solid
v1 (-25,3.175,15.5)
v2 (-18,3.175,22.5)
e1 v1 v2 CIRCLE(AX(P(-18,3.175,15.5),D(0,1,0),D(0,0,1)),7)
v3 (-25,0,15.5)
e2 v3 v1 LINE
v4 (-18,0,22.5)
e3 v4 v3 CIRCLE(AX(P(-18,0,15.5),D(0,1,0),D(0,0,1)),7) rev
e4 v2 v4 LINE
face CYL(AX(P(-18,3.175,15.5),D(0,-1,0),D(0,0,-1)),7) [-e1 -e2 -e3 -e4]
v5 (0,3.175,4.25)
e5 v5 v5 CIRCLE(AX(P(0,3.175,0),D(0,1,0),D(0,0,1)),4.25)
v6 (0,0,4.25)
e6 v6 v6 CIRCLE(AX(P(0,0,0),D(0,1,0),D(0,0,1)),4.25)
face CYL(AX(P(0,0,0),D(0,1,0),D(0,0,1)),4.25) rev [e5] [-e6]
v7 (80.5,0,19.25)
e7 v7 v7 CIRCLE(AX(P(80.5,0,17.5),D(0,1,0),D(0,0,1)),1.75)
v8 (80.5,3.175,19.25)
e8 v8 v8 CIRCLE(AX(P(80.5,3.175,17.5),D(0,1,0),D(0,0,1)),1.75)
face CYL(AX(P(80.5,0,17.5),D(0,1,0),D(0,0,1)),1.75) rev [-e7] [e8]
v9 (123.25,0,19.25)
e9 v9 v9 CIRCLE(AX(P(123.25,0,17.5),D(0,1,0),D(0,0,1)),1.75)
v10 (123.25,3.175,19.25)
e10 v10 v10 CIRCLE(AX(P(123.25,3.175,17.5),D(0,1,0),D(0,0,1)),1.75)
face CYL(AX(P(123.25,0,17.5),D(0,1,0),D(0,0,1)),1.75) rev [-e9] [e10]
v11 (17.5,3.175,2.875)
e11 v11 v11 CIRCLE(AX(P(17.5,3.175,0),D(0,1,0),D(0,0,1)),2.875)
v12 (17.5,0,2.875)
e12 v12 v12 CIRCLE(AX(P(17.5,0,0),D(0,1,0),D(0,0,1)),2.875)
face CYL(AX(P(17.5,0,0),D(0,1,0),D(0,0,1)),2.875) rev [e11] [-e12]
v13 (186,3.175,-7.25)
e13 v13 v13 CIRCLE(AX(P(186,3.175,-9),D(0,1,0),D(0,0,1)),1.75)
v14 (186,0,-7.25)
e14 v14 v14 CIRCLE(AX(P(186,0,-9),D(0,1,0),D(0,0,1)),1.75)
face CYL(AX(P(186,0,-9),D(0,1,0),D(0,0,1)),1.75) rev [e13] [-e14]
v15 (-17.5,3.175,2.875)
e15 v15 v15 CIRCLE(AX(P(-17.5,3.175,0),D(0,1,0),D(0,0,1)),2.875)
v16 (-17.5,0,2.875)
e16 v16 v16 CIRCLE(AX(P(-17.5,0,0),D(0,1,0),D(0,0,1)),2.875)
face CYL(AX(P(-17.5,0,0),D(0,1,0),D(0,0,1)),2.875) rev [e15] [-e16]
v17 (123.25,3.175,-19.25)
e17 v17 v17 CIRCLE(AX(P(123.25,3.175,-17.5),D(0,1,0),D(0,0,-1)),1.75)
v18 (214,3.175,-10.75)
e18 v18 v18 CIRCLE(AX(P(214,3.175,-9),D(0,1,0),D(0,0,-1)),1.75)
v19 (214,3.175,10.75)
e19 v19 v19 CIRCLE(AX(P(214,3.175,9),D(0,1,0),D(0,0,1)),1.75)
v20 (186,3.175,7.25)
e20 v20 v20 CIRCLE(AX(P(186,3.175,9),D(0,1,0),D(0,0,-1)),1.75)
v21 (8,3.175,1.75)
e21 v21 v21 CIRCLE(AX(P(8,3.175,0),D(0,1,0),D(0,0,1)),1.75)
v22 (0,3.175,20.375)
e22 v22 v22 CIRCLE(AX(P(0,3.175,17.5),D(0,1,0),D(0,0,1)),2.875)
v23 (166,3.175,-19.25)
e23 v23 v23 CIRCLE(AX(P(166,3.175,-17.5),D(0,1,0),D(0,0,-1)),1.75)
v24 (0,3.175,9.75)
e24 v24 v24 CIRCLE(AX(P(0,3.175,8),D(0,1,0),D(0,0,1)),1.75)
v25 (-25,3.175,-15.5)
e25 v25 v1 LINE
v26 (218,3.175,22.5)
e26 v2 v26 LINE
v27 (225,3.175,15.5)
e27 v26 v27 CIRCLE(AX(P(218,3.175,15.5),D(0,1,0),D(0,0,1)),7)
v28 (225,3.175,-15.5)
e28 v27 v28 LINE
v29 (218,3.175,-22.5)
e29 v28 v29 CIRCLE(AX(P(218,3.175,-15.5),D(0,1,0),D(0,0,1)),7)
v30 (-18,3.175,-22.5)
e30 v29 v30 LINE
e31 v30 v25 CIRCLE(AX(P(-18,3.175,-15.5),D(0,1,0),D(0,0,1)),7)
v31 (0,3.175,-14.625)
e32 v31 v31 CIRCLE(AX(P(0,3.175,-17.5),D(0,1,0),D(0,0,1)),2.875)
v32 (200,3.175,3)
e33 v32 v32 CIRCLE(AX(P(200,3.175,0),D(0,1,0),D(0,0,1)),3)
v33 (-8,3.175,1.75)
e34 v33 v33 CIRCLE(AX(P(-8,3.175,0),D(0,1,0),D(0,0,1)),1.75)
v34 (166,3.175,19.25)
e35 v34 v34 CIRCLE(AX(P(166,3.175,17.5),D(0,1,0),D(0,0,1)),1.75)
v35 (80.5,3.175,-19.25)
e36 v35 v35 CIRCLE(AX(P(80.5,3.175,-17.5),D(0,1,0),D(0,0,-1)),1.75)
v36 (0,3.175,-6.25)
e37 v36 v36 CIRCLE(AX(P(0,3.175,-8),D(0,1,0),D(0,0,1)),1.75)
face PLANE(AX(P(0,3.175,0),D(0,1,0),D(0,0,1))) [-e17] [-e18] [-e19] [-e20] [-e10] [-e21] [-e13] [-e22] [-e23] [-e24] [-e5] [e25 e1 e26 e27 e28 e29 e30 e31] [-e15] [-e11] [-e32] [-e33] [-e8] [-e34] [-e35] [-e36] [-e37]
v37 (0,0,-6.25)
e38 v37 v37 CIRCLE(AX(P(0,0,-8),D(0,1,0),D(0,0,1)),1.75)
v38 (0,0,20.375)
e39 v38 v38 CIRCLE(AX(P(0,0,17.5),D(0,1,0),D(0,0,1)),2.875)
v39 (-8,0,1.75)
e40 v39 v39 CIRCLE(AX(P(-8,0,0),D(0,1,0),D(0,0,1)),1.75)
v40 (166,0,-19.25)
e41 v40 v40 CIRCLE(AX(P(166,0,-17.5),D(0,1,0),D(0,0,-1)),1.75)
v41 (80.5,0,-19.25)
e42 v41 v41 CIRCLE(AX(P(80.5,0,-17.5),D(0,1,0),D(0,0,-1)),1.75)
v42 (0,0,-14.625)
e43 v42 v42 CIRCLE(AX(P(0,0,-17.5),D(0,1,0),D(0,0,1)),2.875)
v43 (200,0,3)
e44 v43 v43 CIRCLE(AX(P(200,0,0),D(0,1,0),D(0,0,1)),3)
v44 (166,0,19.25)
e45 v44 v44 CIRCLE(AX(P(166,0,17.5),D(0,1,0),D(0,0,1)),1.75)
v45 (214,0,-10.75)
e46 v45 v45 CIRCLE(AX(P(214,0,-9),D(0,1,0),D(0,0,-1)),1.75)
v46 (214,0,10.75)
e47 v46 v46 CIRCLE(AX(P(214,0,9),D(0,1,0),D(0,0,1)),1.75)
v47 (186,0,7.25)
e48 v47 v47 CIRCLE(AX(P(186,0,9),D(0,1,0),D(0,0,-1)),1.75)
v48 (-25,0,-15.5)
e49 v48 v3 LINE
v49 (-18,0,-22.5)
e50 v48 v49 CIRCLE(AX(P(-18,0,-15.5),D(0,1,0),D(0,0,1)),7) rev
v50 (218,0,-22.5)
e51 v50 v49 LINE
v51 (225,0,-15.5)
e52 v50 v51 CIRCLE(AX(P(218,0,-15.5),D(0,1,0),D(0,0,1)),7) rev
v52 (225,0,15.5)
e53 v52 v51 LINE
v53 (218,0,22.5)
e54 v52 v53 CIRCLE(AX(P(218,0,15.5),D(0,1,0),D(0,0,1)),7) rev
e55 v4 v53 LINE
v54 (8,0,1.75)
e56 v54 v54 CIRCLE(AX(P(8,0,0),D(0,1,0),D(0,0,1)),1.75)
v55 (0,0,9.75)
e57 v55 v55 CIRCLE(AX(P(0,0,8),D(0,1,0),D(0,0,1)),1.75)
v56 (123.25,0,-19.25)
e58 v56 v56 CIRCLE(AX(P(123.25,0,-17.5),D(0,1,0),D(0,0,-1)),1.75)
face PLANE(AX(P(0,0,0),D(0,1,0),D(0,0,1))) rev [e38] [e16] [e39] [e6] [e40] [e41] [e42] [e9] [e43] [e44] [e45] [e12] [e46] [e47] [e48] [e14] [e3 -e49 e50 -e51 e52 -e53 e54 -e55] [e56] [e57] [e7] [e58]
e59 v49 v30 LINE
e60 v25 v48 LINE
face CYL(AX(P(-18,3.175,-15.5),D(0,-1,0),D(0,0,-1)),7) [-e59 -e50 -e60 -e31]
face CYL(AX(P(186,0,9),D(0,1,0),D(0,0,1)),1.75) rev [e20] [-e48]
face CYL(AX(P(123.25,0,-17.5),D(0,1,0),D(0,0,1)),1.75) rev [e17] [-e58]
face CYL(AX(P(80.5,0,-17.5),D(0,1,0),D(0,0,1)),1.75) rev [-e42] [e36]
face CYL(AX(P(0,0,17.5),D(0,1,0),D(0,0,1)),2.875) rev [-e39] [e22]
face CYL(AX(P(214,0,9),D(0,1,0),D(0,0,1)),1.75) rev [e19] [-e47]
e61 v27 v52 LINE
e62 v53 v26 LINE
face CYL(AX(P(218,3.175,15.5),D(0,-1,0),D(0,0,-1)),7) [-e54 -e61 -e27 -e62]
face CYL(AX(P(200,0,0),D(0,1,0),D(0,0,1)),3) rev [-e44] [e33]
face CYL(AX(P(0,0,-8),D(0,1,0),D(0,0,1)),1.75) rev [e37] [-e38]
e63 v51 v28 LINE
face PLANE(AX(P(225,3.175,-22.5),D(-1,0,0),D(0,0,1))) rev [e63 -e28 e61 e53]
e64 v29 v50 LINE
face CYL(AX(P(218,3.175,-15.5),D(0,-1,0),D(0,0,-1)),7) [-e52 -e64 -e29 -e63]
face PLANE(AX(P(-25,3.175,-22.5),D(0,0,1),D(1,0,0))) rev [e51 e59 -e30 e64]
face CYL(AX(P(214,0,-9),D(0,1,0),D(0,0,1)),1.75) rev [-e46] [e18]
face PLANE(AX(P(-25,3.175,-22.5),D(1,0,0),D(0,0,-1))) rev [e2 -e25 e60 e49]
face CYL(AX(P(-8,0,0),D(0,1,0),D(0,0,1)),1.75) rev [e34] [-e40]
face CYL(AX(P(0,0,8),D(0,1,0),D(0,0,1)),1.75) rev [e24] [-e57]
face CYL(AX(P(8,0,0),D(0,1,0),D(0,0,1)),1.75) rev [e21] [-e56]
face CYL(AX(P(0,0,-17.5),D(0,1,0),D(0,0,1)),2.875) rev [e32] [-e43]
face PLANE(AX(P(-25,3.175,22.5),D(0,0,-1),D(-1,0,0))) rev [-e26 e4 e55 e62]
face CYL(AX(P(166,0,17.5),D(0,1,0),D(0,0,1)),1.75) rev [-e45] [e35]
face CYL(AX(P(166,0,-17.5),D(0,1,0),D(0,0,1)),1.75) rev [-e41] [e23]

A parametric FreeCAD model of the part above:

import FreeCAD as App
import Part
import Sketcher


def edges_at(feature, points):
    """Names of the edges that pass closest to the given points."""
    edges = feature.Shape.Edges
    near = lambda p: min(range(len(edges)), key=lambda i: edges[i].distToShape(Part.Vertex(*p))[0])
    return sorted({f"Edge{near(p) + 1}" for p in points})


def add_polygon(sketch, points):
    """Adds a closed chain of lines whose ends are joined by coincident constraints."""
    first, n = sketch.GeometryCount, len(points)
    for a, b in zip(points, points[1:] + points[:1]):
        sketch.addGeometry(Part.LineSegment(App.Vector(*a, 0), App.Vector(*b, 0)), False)
    for i in range(n):
        sketch.addConstraint(Sketcher.Constraint("Coincident", first + i, 2, first + (i + 1) % n, 1))

doc = App.newDocument("Part")
body = doc.addObject("PartDesign::Body", "Body")

# Sketch on XZ plane
sketch1 = body.newObject("Sketcher::SketchObject", "Sketch")
sketch1.AttachmentSupport = (doc.getObject("XZ_Plane"), [""])
sketch1.MapMode = "FlatFace"
add_polygon(sketch1, [(-25, -22), (-25, 22), (225, 22), (225, -22)])  # lines 0-3
sketch1.addConstraint([
    Sketcher.Constraint("Vertical", 0),
    Sketcher.Constraint("Horizontal", 1),
    Sketcher.Constraint("Vertical", 2),
    Sketcher.Constraint("Horizontal", 3),
    Sketcher.Constraint("DistanceX", 1, 1, 1, 2, 250.0),
    Sketcher.Constraint("DistanceY", 0, 1, 0, 2, 45.0),
    Sketcher.Constraint("DistanceX", 0, 2, -1, 1, 25.0),
    Sketcher.Constraint("DistanceY", -1, 1, 0, 2, 22.5),
])
pad1 = body.newObject("PartDesign::Pad", "Pad")
pad1.Profile = sketch1
pad1.Length = 3.175
pad1.Reversed = True

# Sketch on XZ plane
sketch2 = body.newObject("Sketcher::SketchObject", "Sketch001")
sketch2.AttachmentSupport = (doc.getObject("XZ_Plane"), [""])
sketch2.MapMode = "FlatFace"
sketch2.AttachmentOffset = App.Placement(App.Vector(0, 0, -3.175), App.Rotation())
sketch2.addGeometry([
    Part.Circle(App.Vector(200, 0, 0), App.Vector(0, 0, 1), 3),  # 0
    Part.Circle(App.Vector(186, -9, 0), App.Vector(0, 0, 1), 1.8),  # 1
    Part.Circle(App.Vector(214, -9, 0), App.Vector(0, 0, 1), 1.8),  # 2
    Part.Circle(App.Vector(214, 9, 0), App.Vector(0, 0, 1), 1.8),  # 3
    Part.Circle(App.Vector(186, 9, 0), App.Vector(0, 0, 1), 1.8),  # 4
], False)
sketch2.addConstraint([
    Sketcher.Constraint("Equal", 1, 2),
    Sketcher.Constraint("Equal", 2, 3),
    Sketcher.Constraint("Equal", 3, 4),
    Sketcher.Constraint("Symmetric", 2, 3, 3, 3, -1),
    Sketcher.Constraint("Symmetric", 1, 3, 4, 3, -1),
    Sketcher.Constraint("PointOnObject", 0, 3, -1),
    Sketcher.Constraint("Horizontal", 1, 3, 2, 3),
    Sketcher.Constraint("Diameter", 0, 6.0),
    Sketcher.Constraint("Diameter", 1, 3.5),
    Sketcher.Constraint("DistanceX", -1, 1, 0, 3, 200.0),
    Sketcher.Constraint("DistanceX", -1, 1, 1, 3, 186.0),
    Sketcher.Constraint("DistanceY", 1, 3, -1, 1, 9.0),
    Sketcher.Constraint("DistanceX", -1, 1, 2, 3, 214.0),
])
pocket1 = body.newObject("PartDesign::Pocket", "Pocket")
pocket1.Profile = sketch2
pocket1.Type = "ThroughAll"
pocket1.Reversed = True

# Sketch on XZ plane
sketch3 = body.newObject("Sketcher::SketchObject", "Sketch002")
sketch3.AttachmentSupport = (doc.getObject("XZ_Plane"), [""])
sketch3.MapMode = "FlatFace"
sketch3.AttachmentOffset = App.Placement(App.Vector(0, 0, -3.175), App.Rotation())
sketch3.addGeometry(Part.Circle(App.Vector(0, 0, 0), App.Vector(0, 0, 1), 4.2), False)
sketch3.addConstraint([
    Sketcher.Constraint("Coincident", 0, 3, -1, 1),
    Sketcher.Constraint("Diameter", 0, 8.5),
])
pocket2 = body.newObject("PartDesign::Pocket", "Pocket001")
pocket2.Profile = sketch3
pocket2.Type = "ThroughAll"
pocket2.Reversed = True

# Sketch on XZ plane
sketch4 = body.newObject("Sketcher::SketchObject", "Sketch003")
sketch4.AttachmentSupport = (doc.getObject("XZ_Plane"), [""])
sketch4.MapMode = "FlatFace"
sketch4.AttachmentOffset = App.Placement(App.Vector(0, 0, -3.175), App.Rotation())
sketch4.addGeometry([
    Part.Circle(App.Vector(80.5, 17.5, 0), App.Vector(0, 0, 1), 1.8),  # 0
    Part.Circle(App.Vector(166, 17.5, 0), App.Vector(0, 0, 1), 1.8),  # 1
    Part.Circle(App.Vector(166, -17.5, 0), App.Vector(0, 0, 1), 1.8),  # 2
    Part.Circle(App.Vector(80.5, -17.5, 0), App.Vector(0, 0, 1), 1.8),  # 3
    Part.Circle(App.Vector(123.2, 17.5, 0), App.Vector(0, 0, 1), 1.8),  # 4
    Part.Circle(App.Vector(123.2, -17.5, 0), App.Vector(0, 0, 1), 1.8),  # 5
], False)
sketch4.addConstraint([
    Sketcher.Constraint("Equal", 0, 1),
    Sketcher.Constraint("Equal", 1, 2),
    Sketcher.Constraint("Equal", 2, 3),
    Sketcher.Constraint("Equal", 3, 4),
    Sketcher.Constraint("Equal", 4, 5),
    Sketcher.Constraint("Symmetric", 1, 3, 2, 3, -1),
    Sketcher.Constraint("Symmetric", 0, 3, 3, 3, -1),
    Sketcher.Constraint("Symmetric", 4, 3, 5, 3, -1),
    Sketcher.Constraint("Horizontal", 0, 3, 1, 3),
    Sketcher.Constraint("Horizontal", 1, 3, 4, 3),
    Sketcher.Constraint("Diameter", 0, 3.5),
    Sketcher.Constraint("DistanceX", -1, 1, 1, 3, 166.0),
    Sketcher.Constraint("DistanceY", 2, 3, 1, 3, 35.0),
    Sketcher.Constraint("DistanceX", -1, 1, 0, 3, 80.5),
    Sketcher.Constraint("DistanceX", -1, 1, 4, 3, 123.25),
])
pocket3 = body.newObject("PartDesign::Pocket", "Pocket002")
pocket3.Profile = sketch4
pocket3.Type = "ThroughAll"
pocket3.Reversed = True
doc.recompute()

fillet = body.newObject("PartDesign::Fillet", "Fillet")
fillet.Base = (pocket3, edges_at(pocket3, [
    (-25, 1.587, -22.5),
    (225, 1.587, -22.5),
    (225, 1.587, 22.5),
    (-25, 1.587, 22.5),
]))
fillet.Radius = 7

# Sketch on XZ plane
sketch5 = body.newObject("Sketcher::SketchObject", "Sketch004")
sketch5.AttachmentSupport = (doc.getObject("XZ_Plane"), [""])
sketch5.MapMode = "FlatFace"
sketch5.AttachmentOffset = App.Placement(App.Vector(0, 0, -3.175), App.Rotation())
sketch5.addGeometry([
    Part.Circle(App.Vector(0, -17.5, 0), App.Vector(0, 0, 1), 2.9),
    Part.Circle(App.Vector(17.5, 0, 0), App.Vector(0, 0, 1), 2.9),
    Part.Circle(App.Vector(0, 17.5, 0), App.Vector(0, 0, 1), 2.9),
    Part.Circle(App.Vector(-17.5, 0, 0), App.Vector(0, 0, 1), 2.9),
], False)
sketch5.addConstraint([
    Sketcher.Constraint("Equal", 0, 1),
    Sketcher.Constraint("Equal", 1, 2),
    Sketcher.Constraint("Equal", 2, 3),
    Sketcher.Constraint("Symmetric", 0, 3, 2, 3, -1, 1),
    Sketcher.Constraint("Symmetric", 1, 3, 3, 3, -1, 1),
    Sketcher.Constraint("PointOnObject", 0, 3, -2),
    Sketcher.Constraint("PointOnObject", 1, 3, -1),
    Sketcher.Constraint("Diameter", 0, 5.75),
    Sketcher.Constraint("DistanceY", 0, 3, 2, 3, 35.0),
    Sketcher.Constraint("DistanceX", 3, 3, 1, 3, 35.0),
])
pocket4 = body.newObject("PartDesign::Pocket", "Pocket003")
pocket4.Profile = sketch5
pocket4.Type = "ThroughAll"
pocket4.Reversed = True

# Sketch on XZ plane
sketch6 = body.newObject("Sketcher::SketchObject", "Sketch005")
sketch6.AttachmentSupport = (doc.getObject("XZ_Plane"), [""])
sketch6.MapMode = "FlatFace"
sketch6.AttachmentOffset = App.Placement(App.Vector(0, 0, -3.175), App.Rotation())
sketch6.addGeometry([
    Part.Circle(App.Vector(0, -8, 0), App.Vector(0, 0, 1), 1.8),
    Part.Circle(App.Vector(8, 0, 0), App.Vector(0, 0, 1), 1.8),
    Part.Circle(App.Vector(0, 8, 0), App.Vector(0, 0, 1), 1.8),
    Part.Circle(App.Vector(-8, 0, 0), App.Vector(0, 0, 1), 1.8),
], False)
sketch6.addConstraint([
    Sketcher.Constraint("Equal", 0, 1),
    Sketcher.Constraint("Equal", 1, 2),
    Sketcher.Constraint("Equal", 2, 3),
    Sketcher.Constraint("Symmetric", 0, 3, 2, 3, -1, 1),
    Sketcher.Constraint("Symmetric", 1, 3, 3, 3, -1, 1),
    Sketcher.Constraint("PointOnObject", 0, 3, -2),
    Sketcher.Constraint("PointOnObject", 1, 3, -1),
    Sketcher.Constraint("Diameter", 0, 3.5),
    Sketcher.Constraint("DistanceY", 0, 3, -1, 1, 8.0),
    Sketcher.Constraint("DistanceX", -1, 1, 1, 3, 8.0),
])
pocket5 = body.newObject("PartDesign::Pocket", "Pocket004")
pocket5.Profile = sketch6
pocket5.Type = "ThroughAll"
pocket5.Reversed = True

doc.recompute()
